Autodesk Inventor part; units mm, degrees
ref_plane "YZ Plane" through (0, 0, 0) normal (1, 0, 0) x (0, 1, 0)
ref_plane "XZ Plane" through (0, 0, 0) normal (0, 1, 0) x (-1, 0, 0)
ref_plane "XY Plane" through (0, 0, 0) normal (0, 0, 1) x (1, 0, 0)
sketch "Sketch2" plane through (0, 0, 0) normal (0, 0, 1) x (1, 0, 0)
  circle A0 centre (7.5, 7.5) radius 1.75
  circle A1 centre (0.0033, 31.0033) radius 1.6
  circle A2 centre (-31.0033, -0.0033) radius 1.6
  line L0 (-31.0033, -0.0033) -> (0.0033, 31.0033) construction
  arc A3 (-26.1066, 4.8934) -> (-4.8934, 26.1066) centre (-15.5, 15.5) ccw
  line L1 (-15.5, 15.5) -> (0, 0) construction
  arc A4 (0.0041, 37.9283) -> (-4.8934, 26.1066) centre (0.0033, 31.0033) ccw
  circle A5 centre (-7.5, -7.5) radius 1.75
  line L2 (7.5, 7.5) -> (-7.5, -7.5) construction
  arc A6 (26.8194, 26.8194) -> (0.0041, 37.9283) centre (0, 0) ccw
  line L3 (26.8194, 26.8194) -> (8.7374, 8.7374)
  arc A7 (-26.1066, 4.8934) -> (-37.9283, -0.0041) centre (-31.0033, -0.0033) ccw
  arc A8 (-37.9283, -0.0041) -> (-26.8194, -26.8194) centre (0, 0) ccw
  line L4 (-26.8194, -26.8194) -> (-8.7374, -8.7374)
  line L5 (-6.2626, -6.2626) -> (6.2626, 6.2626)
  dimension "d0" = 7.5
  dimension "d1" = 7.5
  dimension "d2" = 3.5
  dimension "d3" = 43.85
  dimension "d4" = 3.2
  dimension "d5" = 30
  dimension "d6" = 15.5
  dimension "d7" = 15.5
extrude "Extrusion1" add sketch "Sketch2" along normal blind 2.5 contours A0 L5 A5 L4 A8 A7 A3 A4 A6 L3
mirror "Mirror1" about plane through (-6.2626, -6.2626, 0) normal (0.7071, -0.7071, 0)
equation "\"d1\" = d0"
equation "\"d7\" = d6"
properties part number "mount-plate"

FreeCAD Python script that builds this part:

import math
import FreeCAD as App
import Part
import Sketcher

V = App.Vector
Q = App.Units.Quantity

doc = App.newDocument("Part")
body = doc.addObject("PartDesign::Body", "Body")

sketch1 = body.newObject("Sketcher::SketchObject", "Sketch")
sketch1.AttachmentSupport = (doc.getObject("XY_Plane"), [""])
sketch1.MapMode = "FlatFace"
sketch1.addGeometry(Part.ArcOfCircle(Part.Circle(V(7.5, 7.5, 0), V(0, 0, 1), 1.75), math.radians(45), math.radians(225)), False)
sketch1.addGeometry(Part.LineSegment(V(8.7374, 8.7374, 0), V(26.8194, 26.8194, 0)), False)
sketch1.addGeometry(Part.ArcOfCircle(Part.Circle(V(0, 0, 0), V(0, 0, 1), 37.9283), math.radians(45), math.radians(89.993806)), False)
sketch1.addGeometry(Part.ArcOfCircle(Part.Circle(V(0.0033, 31.0033, 0), V(0, 0, 1), 6.925), math.radians(89.993381), math.radians(225)), False)
sketch1.addGeometry(Part.ArcOfCircle(Part.Circle(V(-15.5, 15.5, 0), V(0, 0, 1), 14.999998), math.radians(-135), math.radians(45)), False)
sketch1.addGeometry(Part.ArcOfCircle(Part.Circle(V(-31.0033, -0.0033, 0), V(0, 0, 1), 6.92498), math.radians(45), math.radians(180.006619)), False)
sketch1.addGeometry(Part.ArcOfCircle(Part.Circle(V(0, 0, 0), V(0, 0, 1), 37.928359), math.radians(-179.993806), math.radians(-135)), False)
sketch1.addGeometry(Part.LineSegment(V(-26.8194, -26.8194, 0), V(-8.7374, -8.7374, 0)), False)
sketch1.addGeometry(Part.ArcOfCircle(Part.Circle(V(-7.5, -7.5, 0), V(0, 0, 1), 1.75), math.radians(45), math.radians(225)), False)
sketch1.addGeometry(Part.LineSegment(V(-6.2626, -6.2626, 0), V(6.2626, 6.2626, 0)), False)
sketch1.addGeometry(Part.Circle(V(-31.0033, -0.0033, 0), V(0, 0, 1), 1.6), False)
sketch1.addGeometry(Part.Circle(V(0.0033, 31.0033, 0), V(0, 0, 1), 1.6), False)
sketch1.addConstraint(Sketcher.Constraint("Coincident", 0, 1, 1, 1))
sketch1.addConstraint(Sketcher.Constraint("Coincident", 1, 2, 2, 1))
sketch1.addConstraint(Sketcher.Constraint("Tangent", 2, 2, 3, 1))
sketch1.addConstraint(Sketcher.Constraint("Tangent", 3, 2, 4, 2))
sketch1.addConstraint(Sketcher.Constraint("Tangent", 4, 1, 5, 1))
sketch1.addConstraint(Sketcher.Constraint("Tangent", 5, 2, 6, 1))
sketch1.addConstraint(Sketcher.Constraint("Coincident", 6, 2, 7, 1))
sketch1.addConstraint(Sketcher.Constraint("Coincident", 7, 2, 8, 2))
sketch1.addConstraint(Sketcher.Constraint("Coincident", 8, 1, 9, 1))
sketch1.addConstraint(Sketcher.Constraint("Coincident", 9, 2, 0, 2))
sketch1.addConstraint(Sketcher.Constraint("Coincident", 2, 3, -1, 1))
sketch1.addConstraint(Sketcher.Constraint("Coincident", 6, 3, -1, 1))
sketch1.addConstraint(Sketcher.Constraint("Coincident", 10, 3, 5, 3))
sketch1.addConstraint(Sketcher.Constraint("Coincident", 11, 3, 3, 3))
sketch1.addConstraint(Sketcher.Constraint("Equal", 3, 5))
sketch1.addConstraint(Sketcher.Constraint("Equal", 2, 6))
sketch1.addConstraint(Sketcher.Constraint("Equal", 0, 8))
sketch1.addConstraint(Sketcher.Constraint("Equal", 10, 11))
sketch1.addConstraint(Sketcher.Constraint("Symmetric", 0, 3, 8, 3, -1, 1))
sketch1.addConstraint(Sketcher.Constraint("Parallel", 1, 7))
sketch1.addConstraint(Sketcher.Constraint("Parallel", 7, 9))
sketch1.addConstraint(Sketcher.Constraint("Radius", 4, 15.0))
sketch1.addConstraint(Sketcher.Constraint("Diameter", 10, 3.2))
sketch1.addConstraint(Sketcher.Constraint("Radius", 0, 1.75))
sketch1.addConstraint(Sketcher.Constraint("DistanceX", -1, 1, 0, 3, 7.5))
sketch1.addConstraint(Sketcher.Constraint("DistanceY", -1, 1, 0, 3, 7.5))
sketch1.addConstraint(Sketcher.Constraint("DistanceX", 4, 3, -1, 1, 15.5))
sketch1.addConstraint(Sketcher.Constraint("DistanceY", -1, 1, 4, 3, 15.5))
sketch1.addConstraint(Sketcher.Constraint("Angle", 1, Q("45 deg")))
sketch1.addConstraint(Sketcher.Constraint("Radius", 3, 6.925))
sketch1.addConstraint(Sketcher.Constraint("Radius", 2, 37.9283))
sketch1.addConstraint(Sketcher.Constraint("DistanceX", 3, 3, 1, 2, 26.816))
sketch1.addConstraint(Sketcher.Constraint("DistanceX", 5, 3, 6, 2, 4.184))
sketch1.addConstraint(Sketcher.Constraint("DistanceX", 8, 1, -1, 1, 6.2626))
pad1 = body.newObject("PartDesign::Pad", "Pad")
pad1.Profile = sketch1
pad1.Length = 2.5
doc.recompute()

datumplane = body.newObject("PartDesign::Plane", "DatumPlane")
datumplane.Placement = App.Placement(V(0, 0, 0), App.Rotation(V(0.707106781, 0.707106781, 0), V(0, 0, -1), V(-0.707106781, 0.707106781, 0), "ZXY"))
mirrored = body.newObject("PartDesign::Mirrored", "Mirrored")
mirrored.TransformMode = "Transform body"
mirrored.MirrorPlane = (datumplane, [""])
body.Tip = mirrored

doc.recompute()
